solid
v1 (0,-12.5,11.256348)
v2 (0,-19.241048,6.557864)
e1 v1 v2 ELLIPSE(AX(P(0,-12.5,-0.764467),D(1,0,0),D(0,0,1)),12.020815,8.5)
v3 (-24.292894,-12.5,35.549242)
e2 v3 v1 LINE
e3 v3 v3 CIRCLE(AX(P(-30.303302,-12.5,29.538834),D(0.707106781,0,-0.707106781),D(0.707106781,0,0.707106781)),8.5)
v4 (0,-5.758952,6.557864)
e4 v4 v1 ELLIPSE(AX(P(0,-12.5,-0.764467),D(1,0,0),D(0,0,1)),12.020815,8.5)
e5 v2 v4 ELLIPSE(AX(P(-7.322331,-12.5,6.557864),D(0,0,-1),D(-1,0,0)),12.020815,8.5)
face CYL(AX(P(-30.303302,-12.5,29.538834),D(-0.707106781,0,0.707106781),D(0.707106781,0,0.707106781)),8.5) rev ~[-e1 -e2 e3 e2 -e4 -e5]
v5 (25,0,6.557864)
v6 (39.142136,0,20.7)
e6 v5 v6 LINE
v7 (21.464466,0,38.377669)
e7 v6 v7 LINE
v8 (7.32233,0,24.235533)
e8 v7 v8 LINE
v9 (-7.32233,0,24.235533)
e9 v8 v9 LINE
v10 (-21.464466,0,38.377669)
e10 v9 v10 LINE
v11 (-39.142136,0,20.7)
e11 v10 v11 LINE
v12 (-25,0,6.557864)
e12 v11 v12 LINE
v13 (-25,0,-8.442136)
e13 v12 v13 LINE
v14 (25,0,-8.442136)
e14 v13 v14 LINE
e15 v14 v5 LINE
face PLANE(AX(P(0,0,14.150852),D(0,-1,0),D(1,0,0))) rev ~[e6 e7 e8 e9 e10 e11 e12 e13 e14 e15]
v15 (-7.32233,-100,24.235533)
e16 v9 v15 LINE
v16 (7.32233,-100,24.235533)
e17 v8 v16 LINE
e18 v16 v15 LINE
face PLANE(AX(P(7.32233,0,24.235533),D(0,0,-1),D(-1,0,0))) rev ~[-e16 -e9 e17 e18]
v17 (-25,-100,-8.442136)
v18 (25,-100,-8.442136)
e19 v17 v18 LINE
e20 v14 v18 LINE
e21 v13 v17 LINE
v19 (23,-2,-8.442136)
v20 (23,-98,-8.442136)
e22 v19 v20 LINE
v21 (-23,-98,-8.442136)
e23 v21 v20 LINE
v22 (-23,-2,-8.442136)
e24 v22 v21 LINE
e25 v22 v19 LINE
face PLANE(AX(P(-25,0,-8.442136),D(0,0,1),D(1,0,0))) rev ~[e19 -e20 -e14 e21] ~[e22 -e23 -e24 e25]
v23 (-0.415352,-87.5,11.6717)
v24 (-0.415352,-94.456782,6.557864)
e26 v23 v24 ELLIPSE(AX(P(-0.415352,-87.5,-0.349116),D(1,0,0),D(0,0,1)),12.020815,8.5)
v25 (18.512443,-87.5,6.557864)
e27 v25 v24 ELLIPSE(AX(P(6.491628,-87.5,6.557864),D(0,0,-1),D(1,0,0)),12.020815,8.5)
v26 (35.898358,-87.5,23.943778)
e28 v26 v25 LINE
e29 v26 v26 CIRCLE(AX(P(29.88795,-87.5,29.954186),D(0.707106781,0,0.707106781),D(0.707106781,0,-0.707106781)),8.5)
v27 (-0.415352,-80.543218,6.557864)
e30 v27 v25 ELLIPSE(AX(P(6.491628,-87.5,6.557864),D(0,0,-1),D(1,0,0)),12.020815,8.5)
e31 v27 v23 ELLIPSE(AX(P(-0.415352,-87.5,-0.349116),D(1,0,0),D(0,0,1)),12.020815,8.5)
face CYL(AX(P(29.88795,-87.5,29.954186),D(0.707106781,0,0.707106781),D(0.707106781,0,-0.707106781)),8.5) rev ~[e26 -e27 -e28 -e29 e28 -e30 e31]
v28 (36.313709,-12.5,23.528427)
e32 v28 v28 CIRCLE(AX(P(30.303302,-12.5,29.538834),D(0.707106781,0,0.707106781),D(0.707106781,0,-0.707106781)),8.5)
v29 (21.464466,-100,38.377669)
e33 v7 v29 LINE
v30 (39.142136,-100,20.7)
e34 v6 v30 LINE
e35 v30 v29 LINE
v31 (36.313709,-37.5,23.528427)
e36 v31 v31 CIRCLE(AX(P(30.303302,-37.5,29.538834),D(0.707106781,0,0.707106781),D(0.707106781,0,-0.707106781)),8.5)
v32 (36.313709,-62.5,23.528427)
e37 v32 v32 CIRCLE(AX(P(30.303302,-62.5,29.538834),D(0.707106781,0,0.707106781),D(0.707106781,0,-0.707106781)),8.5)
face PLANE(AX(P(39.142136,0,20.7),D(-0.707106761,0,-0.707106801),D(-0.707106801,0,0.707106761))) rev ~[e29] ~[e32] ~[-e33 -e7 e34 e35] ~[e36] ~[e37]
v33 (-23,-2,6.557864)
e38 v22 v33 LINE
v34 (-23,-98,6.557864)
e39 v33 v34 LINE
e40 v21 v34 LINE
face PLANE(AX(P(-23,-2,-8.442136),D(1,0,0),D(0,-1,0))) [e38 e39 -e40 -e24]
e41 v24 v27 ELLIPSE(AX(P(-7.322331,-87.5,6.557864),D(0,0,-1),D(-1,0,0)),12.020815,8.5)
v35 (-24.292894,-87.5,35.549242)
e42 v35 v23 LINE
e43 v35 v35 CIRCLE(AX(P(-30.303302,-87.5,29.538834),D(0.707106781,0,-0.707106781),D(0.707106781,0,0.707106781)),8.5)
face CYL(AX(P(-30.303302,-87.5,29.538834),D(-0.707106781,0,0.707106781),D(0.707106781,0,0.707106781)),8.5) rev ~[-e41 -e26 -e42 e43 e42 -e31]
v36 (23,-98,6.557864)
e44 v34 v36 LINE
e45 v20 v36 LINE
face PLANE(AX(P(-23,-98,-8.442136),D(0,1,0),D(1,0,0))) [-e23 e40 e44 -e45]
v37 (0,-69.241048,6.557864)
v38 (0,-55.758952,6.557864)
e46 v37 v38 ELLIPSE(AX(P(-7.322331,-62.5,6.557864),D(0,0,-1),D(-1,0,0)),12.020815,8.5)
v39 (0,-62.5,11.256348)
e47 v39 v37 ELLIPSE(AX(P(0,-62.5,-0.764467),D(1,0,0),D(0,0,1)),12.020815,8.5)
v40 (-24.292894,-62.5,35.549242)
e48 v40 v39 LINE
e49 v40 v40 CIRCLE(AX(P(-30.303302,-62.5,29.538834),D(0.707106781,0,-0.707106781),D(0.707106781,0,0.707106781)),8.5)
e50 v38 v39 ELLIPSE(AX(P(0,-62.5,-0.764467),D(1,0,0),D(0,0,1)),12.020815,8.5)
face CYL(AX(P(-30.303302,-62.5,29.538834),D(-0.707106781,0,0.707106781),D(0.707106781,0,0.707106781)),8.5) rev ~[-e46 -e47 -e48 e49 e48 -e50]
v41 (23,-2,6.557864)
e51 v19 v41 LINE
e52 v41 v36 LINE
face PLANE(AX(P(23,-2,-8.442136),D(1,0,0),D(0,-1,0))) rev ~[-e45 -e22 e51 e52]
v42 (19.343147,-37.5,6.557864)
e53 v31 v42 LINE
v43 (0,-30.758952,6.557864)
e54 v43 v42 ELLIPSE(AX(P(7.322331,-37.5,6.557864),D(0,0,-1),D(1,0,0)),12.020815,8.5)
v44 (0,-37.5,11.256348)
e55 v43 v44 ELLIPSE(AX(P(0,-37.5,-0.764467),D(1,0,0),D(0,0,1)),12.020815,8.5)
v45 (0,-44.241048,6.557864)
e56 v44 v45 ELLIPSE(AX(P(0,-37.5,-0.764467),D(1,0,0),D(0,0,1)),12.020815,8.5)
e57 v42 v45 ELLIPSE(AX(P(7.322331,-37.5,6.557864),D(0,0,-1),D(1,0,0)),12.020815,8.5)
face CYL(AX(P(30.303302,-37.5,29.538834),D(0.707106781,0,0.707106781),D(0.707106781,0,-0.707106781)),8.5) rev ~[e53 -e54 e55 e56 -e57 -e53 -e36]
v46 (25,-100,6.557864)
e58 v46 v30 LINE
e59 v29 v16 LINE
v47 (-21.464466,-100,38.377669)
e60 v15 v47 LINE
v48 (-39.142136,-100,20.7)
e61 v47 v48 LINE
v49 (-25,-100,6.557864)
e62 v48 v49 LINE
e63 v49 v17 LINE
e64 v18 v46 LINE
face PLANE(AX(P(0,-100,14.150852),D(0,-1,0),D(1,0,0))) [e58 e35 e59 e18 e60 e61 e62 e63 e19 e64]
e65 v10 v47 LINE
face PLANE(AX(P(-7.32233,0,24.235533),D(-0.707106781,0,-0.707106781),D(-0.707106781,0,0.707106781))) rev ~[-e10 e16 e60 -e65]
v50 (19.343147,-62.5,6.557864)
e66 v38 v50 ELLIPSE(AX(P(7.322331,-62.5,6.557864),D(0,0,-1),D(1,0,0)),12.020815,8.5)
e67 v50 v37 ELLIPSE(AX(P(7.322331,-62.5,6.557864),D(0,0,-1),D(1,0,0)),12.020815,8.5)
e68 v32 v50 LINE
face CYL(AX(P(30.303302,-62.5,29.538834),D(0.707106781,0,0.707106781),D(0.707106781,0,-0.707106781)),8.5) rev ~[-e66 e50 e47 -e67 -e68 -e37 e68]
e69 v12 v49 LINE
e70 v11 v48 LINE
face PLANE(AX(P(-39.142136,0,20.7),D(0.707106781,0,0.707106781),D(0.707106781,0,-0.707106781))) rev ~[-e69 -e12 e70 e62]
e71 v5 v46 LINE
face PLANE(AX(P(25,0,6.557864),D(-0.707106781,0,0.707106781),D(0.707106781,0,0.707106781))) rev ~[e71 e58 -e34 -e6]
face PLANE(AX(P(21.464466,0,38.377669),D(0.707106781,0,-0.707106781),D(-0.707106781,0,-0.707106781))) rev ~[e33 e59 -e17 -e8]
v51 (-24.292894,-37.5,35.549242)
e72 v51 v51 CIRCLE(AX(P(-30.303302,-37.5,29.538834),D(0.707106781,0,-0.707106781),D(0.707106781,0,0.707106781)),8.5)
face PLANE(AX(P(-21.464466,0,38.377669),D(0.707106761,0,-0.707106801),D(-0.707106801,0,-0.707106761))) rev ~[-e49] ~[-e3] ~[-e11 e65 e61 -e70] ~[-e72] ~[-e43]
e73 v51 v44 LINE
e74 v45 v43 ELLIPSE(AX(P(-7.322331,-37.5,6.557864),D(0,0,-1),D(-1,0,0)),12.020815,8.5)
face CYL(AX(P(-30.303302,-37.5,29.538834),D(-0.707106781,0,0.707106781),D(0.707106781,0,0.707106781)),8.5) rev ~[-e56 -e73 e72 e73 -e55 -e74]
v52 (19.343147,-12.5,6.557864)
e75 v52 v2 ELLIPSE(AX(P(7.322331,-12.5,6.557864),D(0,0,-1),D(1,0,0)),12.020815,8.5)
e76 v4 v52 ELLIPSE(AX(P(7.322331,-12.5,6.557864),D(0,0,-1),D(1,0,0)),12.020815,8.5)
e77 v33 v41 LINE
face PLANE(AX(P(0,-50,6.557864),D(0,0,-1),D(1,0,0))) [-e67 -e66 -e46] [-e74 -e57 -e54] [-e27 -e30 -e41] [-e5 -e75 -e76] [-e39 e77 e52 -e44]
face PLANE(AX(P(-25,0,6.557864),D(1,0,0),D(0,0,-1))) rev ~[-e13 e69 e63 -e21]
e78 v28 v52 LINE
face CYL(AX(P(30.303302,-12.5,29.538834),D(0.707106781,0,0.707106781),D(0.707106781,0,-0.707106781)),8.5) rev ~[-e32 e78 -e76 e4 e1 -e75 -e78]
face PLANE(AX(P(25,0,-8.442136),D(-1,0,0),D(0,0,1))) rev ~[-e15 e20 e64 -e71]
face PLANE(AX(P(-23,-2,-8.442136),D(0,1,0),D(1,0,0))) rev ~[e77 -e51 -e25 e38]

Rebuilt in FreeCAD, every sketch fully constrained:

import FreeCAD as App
import Part
import Sketcher
from FreeCAD import Vector
Q = App.Units.Quantity


def add_polygon(sketch, points):
    """Adds a closed chain of lines whose ends are joined by coincident constraints."""
    first, n = sketch.GeometryCount, len(points)
    for a, b in zip(points, points[1:] + points[:1]):
        sketch.addGeometry(Part.LineSegment(App.Vector(*a, 0), App.Vector(*b, 0)), False)
    for i in range(n):
        sketch.addConstraint(Sketcher.Constraint("Coincident", first + i, 2, first + (i + 1) % n, 1))

doc = App.newDocument("Part")
params = doc.addObject("Spreadsheet::Sheet", "Params")
for row, (alias, value) in enumerate([
    ("sketch1_width", "50 mm"),
    ("sketch1_height", "15 mm"),
    ("sketch1_length", "20.000001 mm"),
    ("sketch1_length2", "25 mm"),
    ("pad1_length", "100 mm"),
    ("sketch2_width", "46 mm"),
    ("sketch2_height", "96 mm"),
    ("pocket1_length", "15 mm"),
    ("sketch3_diameter", "17 mm"),
    ("pocket2_length", "50.2 mm"),
    ("sketch4_diameter", "17 mm"),
    ("pocket3_length", "63.4 mm"),
], start=1):
    params.set(f"A{row}", alias)
    params.set(f"B{row}", "=" + value)
    params.setAlias(f"B{row}", alias)

body = doc.addObject("PartDesign::Body", "Body")

# Sketch on XZ plane
sketch1 = body.newObject("Sketcher::SketchObject", "Sketch")
sketch1.AttachmentSupport = (doc.getObject("XZ_Plane"), [""])
sketch1.MapMode = "FlatFace"
add_polygon(sketch1, [(-25, -8), (25, -8), (25, 7), (39, 21), (21, 38), (7, 24), (-7, 24), (-21, 38), (-39, 21), (-25, 7)])  # lines 0-9
sketch1.addConstraint(Sketcher.Constraint("Horizontal", 0))
sketch1.addConstraint(Sketcher.Constraint("Vertical", 1))
sketch1.addConstraint(Sketcher.Constraint("Horizontal", 5))
sketch1.addConstraint(Sketcher.Constraint("Vertical", 9))
sketch1.addConstraint(Sketcher.Constraint("Symmetric", 3, 2, 6, 2, -2))
sketch1.addConstraint(Sketcher.Constraint("Symmetric", 2, 2, 7, 2, -2))
sketch1.addConstraint(Sketcher.Constraint("Symmetric", 1, 2, 8, 2, -2))
sketch1.addConstraint(Sketcher.Constraint("Perpendicular", 2, 3))
sketch1.addConstraint(Sketcher.Constraint("Perpendicular", 3, 4))
sketch1.addConstraint(Sketcher.Constraint("Perpendicular", 4, 6))
sketch1.addConstraint(Sketcher.Constraint("Perpendicular", 6, 7))
sketch1.addConstraint(Sketcher.Constraint("Equal", 2, 4))
sketch1.addConstraint(Sketcher.Constraint("DistanceX", 0, 1, 0, 2, Q("50 mm")))
sketch1.addConstraint(Sketcher.Constraint("DistanceY", 1, 1, 1, 2, Q("15 mm")))
sketch1.addConstraint(Sketcher.Constraint("Distance", 2, Q("20.000001 mm")))
sketch1.addConstraint(Sketcher.Constraint("Distance", 3, Q("25 mm")))
sketch1.addConstraint(Sketcher.Constraint("DistanceY", -1, 1, 2, 2, Q("20.7 mm")))
sketch1.setExpression("Constraints[22]", "Params.sketch1_width")
sketch1.setExpression("Constraints[23]", "Params.sketch1_height")
sketch1.setExpression("Constraints[24]", "Params.sketch1_length")
sketch1.setExpression("Constraints[25]", "Params.sketch1_length2")
pad1 = body.newObject("PartDesign::Pad", "Pad")
pad1.Profile = sketch1
pad1.setExpression("Length", "Params.pad1_length")

# Sketch on XY plane
sketch2 = body.newObject("Sketcher::SketchObject", "Sketch001")
sketch2.AttachmentSupport = (doc.getObject("XY_Plane"), [""])
sketch2.MapMode = "FlatFace"
sketch2.AttachmentOffset = App.Placement(Vector(0, 0, -8.442136), App.Rotation())
add_polygon(sketch2, [(-23, -98), (-23, -2), (23, -2), (23, -98)])  # lines 0-3
sketch2.addConstraint(Sketcher.Constraint("Vertical", 0))
sketch2.addConstraint(Sketcher.Constraint("Horizontal", 1))
sketch2.addConstraint(Sketcher.Constraint("Vertical", 2))
sketch2.addConstraint(Sketcher.Constraint("Horizontal", 3))
sketch2.addConstraint(Sketcher.Constraint("DistanceX", 1, 1, 1, 2, Q("46 mm")))
sketch2.addConstraint(Sketcher.Constraint("DistanceY", 0, 1, 0, 2, Q("96 mm")))
sketch2.addConstraint(Sketcher.Constraint("DistanceX", 0, 2, -1, 1, Q("23 mm")))
sketch2.addConstraint(Sketcher.Constraint("DistanceY", 0, 2, -1, 1, Q("2 mm")))
sketch2.setExpression("Constraints[8]", "Params.sketch2_width")
sketch2.setExpression("Constraints[9]", "Params.sketch2_height")
pocket1 = body.newObject("PartDesign::Pocket", "Pocket")
pocket1.Profile = sketch2
pocket1.setExpression("Length", "Params.pocket1_length")
pocket1.Reversed = True

# Sketch on an angled plane
sketch3 = body.newObject("Sketcher::SketchObject", "Sketch002")
sketch3.Placement = App.Placement(Vector(29.921068, 0, 29.921068), App.Rotation(Vector(0.707106781, 0, -0.707106781), Vector(0, 0.999999999, 0), Vector(0.707106781, 0, 0.707106781), "ZXY"))
sketch3.addGeometry(Part.Circle(Vector(0, -87, 0), Vector(0, 0, 1), 8), False)
sketch3.addGeometry(Part.Circle(Vector(1, -62, 0), Vector(0, 0, 1), 8), False)
sketch3.addGeometry(Part.Circle(Vector(1, -37, 0), Vector(0, 0, 1), 8), False)
sketch3.addGeometry(Part.Circle(Vector(1, -12, 0), Vector(0, 0, 1), 8), False)
sketch3.addConstraint(Sketcher.Constraint("Equal", 0, 1))
sketch3.addConstraint(Sketcher.Constraint("Equal", 1, 2))
sketch3.addConstraint(Sketcher.Constraint("Equal", 2, 3))
sketch3.addConstraint(Sketcher.Constraint("Vertical", 1, 3, 2, 3))
sketch3.addConstraint(Sketcher.Constraint("Vertical", 2, 3, 3, 3))
sketch3.addConstraint(Sketcher.Constraint("Diameter", 0, Q("17 mm")))
sketch3.addConstraint(Sketcher.Constraint("DistanceY", 0, 3, 1, 3, Q("25 mm")))
sketch3.addConstraint(Sketcher.Constraint("DistanceY", 1, 3, 2, 3, Q("25 mm")))
sketch3.addConstraint(Sketcher.Constraint("DistanceY", 2, 3, 3, 3, Q("25 mm")))
sketch3.addConstraint(Sketcher.Constraint("DistanceY", 0, 3, -1, 1, Q("87.5 mm")))
sketch3.addConstraint(Sketcher.Constraint("DistanceX", -1, 1, 1, 3, Q("0.54056 mm")))
sketch3.addConstraint(Sketcher.Constraint("DistanceX", 0, 3, -1, 1, Q("0.046836 mm")))
sketch3.setExpression("Constraints[5]", "Params.sketch3_diameter")
pocket2 = body.newObject("PartDesign::Pocket", "Pocket001")
pocket2.Profile = sketch3
pocket2.setExpression("Length", "Params.pocket2_length")

# Sketch on an angled plane
sketch4 = body.newObject("Sketcher::SketchObject", "Sketch003")
sketch4.Placement = App.Placement(Vector(-29.921068, 0, 29.921068), App.Rotation(Vector(0.707106781, 0, 0.707106781), Vector(0, 0.999999999, 0), Vector(-0.707106781, 0, 0.707106781), "ZXY"))
sketch4.addGeometry(Part.Circle(Vector(-1, -12, 0), Vector(0, 0, 1), 8), False)
sketch4.addGeometry(Part.Circle(Vector(-1, -37, 0), Vector(0, 0, 1), 8), False)
sketch4.addGeometry(Part.Circle(Vector(-1, -62, 0), Vector(0, 0, 1), 8), False)
sketch4.addGeometry(Part.Circle(Vector(-1, -87, 0), Vector(0, 0, 1), 8), False)
sketch4.addConstraint(Sketcher.Constraint("Equal", 0, 1))
sketch4.addConstraint(Sketcher.Constraint("Equal", 1, 2))
sketch4.addConstraint(Sketcher.Constraint("Equal", 2, 3))
sketch4.addConstraint(Sketcher.Constraint("Vertical", 0, 3, 1, 3))
sketch4.addConstraint(Sketcher.Constraint("Vertical", 1, 3, 2, 3))
sketch4.addConstraint(Sketcher.Constraint("Vertical", 2, 3, 3, 3))
sketch4.addConstraint(Sketcher.Constraint("Diameter", 0, Q("17 mm")))
sketch4.addConstraint(Sketcher.Constraint("DistanceY", 1, 3, 0, 3, Q("25 mm")))
sketch4.addConstraint(Sketcher.Constraint("DistanceY", 2, 3, 1, 3, Q("25 mm")))
sketch4.addConstraint(Sketcher.Constraint("DistanceY", 3, 3, 2, 3, Q("25 mm")))
sketch4.addConstraint(Sketcher.Constraint("DistanceY", 0, 3, -1, 1, Q("12.5 mm")))
sketch4.addConstraint(Sketcher.Constraint("DistanceX", 0, 3, -1, 1, Q("0.54056 mm")))
sketch4.setExpression("Constraints[6]", "Params.sketch4_diameter")
pocket3 = body.newObject("PartDesign::Pocket", "Pocket002")
pocket3.Profile = sketch4
pocket3.setExpression("Length", "Params.pocket3_length")

doc.recompute()
